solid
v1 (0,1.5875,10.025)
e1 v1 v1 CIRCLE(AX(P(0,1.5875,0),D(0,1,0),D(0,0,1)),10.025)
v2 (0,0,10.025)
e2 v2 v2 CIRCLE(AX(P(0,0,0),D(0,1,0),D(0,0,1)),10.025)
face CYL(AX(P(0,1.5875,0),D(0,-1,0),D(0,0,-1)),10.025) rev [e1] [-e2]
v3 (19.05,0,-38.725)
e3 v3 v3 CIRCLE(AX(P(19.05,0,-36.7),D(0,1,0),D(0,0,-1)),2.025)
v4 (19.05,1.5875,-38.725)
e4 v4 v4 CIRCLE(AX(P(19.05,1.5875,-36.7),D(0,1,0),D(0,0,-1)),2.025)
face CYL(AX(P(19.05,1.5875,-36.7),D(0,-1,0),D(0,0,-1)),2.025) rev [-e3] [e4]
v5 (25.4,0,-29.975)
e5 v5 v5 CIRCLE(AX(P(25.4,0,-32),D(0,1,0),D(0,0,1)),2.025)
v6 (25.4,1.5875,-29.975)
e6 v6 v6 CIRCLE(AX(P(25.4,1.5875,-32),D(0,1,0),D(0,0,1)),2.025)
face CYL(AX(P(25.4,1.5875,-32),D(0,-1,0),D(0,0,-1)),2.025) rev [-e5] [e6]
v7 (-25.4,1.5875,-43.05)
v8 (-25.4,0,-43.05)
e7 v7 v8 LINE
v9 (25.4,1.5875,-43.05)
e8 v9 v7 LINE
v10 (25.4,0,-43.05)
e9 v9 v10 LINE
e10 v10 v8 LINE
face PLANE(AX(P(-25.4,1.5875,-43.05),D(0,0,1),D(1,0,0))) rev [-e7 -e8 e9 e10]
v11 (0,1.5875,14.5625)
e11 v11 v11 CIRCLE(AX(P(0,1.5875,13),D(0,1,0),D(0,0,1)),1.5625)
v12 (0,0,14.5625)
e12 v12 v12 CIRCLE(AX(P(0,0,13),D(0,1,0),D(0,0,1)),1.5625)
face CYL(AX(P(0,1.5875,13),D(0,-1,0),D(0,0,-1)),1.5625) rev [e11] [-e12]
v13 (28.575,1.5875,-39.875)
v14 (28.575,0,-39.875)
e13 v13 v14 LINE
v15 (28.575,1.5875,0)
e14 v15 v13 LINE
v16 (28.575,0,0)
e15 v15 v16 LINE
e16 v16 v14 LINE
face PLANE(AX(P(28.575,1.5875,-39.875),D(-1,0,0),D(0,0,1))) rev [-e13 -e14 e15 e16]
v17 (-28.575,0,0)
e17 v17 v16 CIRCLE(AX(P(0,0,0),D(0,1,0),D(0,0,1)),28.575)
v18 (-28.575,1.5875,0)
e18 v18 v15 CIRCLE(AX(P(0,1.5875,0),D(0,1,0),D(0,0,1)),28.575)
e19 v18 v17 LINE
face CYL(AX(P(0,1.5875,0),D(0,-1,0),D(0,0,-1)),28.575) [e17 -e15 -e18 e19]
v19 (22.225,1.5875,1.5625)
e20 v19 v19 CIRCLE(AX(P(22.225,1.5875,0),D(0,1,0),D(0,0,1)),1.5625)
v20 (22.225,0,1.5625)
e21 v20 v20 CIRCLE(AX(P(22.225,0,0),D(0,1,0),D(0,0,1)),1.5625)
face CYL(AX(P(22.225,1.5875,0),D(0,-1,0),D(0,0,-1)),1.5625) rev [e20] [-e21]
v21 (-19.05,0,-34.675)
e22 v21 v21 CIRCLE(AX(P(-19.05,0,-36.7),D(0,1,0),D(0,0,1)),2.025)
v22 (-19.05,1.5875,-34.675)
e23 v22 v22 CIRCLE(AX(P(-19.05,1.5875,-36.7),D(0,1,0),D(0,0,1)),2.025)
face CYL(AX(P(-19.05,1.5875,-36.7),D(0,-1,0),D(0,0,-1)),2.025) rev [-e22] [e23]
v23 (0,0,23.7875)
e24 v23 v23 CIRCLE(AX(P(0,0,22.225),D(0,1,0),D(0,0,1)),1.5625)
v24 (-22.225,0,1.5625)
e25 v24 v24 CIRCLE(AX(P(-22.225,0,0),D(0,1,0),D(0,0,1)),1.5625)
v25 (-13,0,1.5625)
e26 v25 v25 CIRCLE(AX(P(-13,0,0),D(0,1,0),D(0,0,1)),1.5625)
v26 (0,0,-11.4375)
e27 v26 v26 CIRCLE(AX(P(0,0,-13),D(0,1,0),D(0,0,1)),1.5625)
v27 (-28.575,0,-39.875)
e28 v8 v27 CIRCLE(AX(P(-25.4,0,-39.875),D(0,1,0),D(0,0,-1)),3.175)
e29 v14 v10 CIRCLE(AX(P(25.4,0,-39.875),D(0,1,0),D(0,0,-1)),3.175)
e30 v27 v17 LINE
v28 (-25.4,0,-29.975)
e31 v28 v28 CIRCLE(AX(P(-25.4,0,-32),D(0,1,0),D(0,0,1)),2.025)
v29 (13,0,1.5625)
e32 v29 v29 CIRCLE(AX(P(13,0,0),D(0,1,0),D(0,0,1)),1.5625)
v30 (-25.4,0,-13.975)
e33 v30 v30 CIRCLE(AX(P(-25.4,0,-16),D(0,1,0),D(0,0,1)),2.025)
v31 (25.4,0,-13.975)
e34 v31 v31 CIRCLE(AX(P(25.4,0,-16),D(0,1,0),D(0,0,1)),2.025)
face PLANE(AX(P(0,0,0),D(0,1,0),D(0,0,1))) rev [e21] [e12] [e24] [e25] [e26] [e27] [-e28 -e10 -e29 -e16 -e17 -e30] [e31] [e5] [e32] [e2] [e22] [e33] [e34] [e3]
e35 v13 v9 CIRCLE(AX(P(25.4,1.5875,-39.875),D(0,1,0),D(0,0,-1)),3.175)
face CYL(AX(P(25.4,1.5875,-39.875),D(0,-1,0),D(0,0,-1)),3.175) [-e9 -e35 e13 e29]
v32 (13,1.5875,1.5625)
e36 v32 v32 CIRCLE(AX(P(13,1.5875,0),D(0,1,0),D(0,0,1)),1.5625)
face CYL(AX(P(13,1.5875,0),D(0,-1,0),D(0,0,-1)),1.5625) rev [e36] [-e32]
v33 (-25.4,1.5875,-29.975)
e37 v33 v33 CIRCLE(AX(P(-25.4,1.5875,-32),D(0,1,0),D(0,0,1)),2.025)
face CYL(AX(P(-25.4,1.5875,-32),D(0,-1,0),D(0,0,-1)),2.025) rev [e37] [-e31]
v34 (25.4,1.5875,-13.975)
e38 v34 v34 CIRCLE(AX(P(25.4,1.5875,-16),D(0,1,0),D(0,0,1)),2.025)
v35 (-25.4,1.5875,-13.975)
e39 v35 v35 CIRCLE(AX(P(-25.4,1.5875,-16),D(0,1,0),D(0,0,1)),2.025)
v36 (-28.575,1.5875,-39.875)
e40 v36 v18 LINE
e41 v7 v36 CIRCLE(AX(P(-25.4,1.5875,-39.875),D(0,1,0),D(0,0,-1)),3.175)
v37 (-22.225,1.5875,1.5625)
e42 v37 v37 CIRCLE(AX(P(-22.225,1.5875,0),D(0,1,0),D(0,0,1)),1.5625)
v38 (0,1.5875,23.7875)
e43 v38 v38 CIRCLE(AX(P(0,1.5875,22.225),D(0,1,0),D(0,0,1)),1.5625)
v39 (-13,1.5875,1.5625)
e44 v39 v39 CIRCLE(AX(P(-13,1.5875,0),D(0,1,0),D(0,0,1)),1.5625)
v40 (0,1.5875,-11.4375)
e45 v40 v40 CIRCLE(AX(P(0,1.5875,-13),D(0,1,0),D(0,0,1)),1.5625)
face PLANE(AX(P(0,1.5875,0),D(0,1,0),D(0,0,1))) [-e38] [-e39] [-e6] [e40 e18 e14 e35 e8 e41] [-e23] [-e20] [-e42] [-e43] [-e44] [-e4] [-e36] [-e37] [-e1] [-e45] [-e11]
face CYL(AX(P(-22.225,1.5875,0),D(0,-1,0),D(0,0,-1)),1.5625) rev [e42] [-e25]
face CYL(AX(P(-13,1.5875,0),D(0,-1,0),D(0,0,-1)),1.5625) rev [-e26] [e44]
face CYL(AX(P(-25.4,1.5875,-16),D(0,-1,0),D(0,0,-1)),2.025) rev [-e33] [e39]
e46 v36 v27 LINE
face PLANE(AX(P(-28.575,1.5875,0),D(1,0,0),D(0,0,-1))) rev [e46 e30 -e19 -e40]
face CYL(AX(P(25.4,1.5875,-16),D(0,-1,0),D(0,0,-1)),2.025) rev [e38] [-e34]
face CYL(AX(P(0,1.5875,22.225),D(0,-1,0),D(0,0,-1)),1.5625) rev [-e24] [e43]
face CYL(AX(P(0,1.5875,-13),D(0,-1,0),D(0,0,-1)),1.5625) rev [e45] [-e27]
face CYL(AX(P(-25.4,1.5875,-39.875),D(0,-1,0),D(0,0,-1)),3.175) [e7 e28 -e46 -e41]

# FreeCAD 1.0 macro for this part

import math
import FreeCAD as App
import Part
import Sketcher
from FreeCAD import Vector
Q = App.Units.Quantity

doc = App.newDocument("Part")
params = doc.addObject("Spreadsheet::Sheet", "Params")
for row, (alias, value) in enumerate([
    ("sketch1_width", "2 in"),
    ("sketch1_radius", "1.125 in"),
    ("pad1_length", "0.0625 in"),
], start=1):
    params.set(f"A{row}", alias)
    params.set(f"B{row}", "=" + value)
    params.setAlias(f"B{row}", alias)

body = doc.addObject("PartDesign::Body", "Body")

# Sketch on XZ plane
sketch1 = body.newObject("Sketcher::SketchObject", "Sketch")
sketch1.AttachmentSupport = (doc.getObject("XZ_Plane"), [""])
sketch1.MapMode = "FlatFace"
sketch1.addGeometry([
    Part.LineSegment(Vector(-28.6, -39.9, 0), Vector(-28.6, 0, 0)),  # 0
    Part.ArcOfCircle(Part.Circle(Vector(0, 0, 0), Vector(0, 0, 1), 28.6), math.radians(0), math.radians(180)),  # 1
    Part.LineSegment(Vector(28.6, 0, 0), Vector(28.6, -39.9, 0)),  # 2
    Part.ArcOfCircle(Part.Circle(Vector(25.4, -39.9, 0), Vector(0, 0, 1), 3.2), math.radians(-90), math.radians(0)),  # 3
    Part.LineSegment(Vector(25.4, -43, 0), Vector(-25.4, -43, 0)),  # 4
    Part.ArcOfCircle(Part.Circle(Vector(-25.4, -39.9, 0), Vector(0, 0, 1), 3.2), math.radians(-180), math.radians(-90)),  # 5
    Part.Circle(Vector(22.2, 0, 0), Vector(0, 0, 1), 1.6),  # 6
    Part.Circle(Vector(13, 0, 0), Vector(0, 0, 1), 1.6),  # 7
    Part.Circle(Vector(0, 22.2, 0), Vector(0, 0, 1), 1.6),  # 8
    Part.Circle(Vector(0, 13, 0), Vector(0, 0, 1), 1.6),  # 9
    Part.Circle(Vector(0, 0, 0), Vector(0, 0, 1), 10),  # 10
    Part.Circle(Vector(-13, 0, 0), Vector(0, 0, 1), 1.6),  # 11
    Part.Circle(Vector(-22.2, 0, 0), Vector(0, 0, 1), 1.6),  # 12
    Part.Circle(Vector(25.4, -16, 0), Vector(0, 0, 1), 2),  # 13
    Part.Circle(Vector(25.4, -32, 0), Vector(0, 0, 1), 2),  # 14
    Part.Circle(Vector(19.1, -36.7, 0), Vector(0, 0, 1), 2),  # 15
    Part.Circle(Vector(0, -13, 0), Vector(0, 0, 1), 1.6),  # 16
    Part.Circle(Vector(-25.4, -16, 0), Vector(0, 0, 1), 2),  # 17
    Part.Circle(Vector(-19.1, -36.7, 0), Vector(0, 0, 1), 2),  # 18
    Part.Circle(Vector(-25.4, -32, 0), Vector(0, 0, 1), 2),  # 19
], False)
sketch1.addConstraint([
    Sketcher.Constraint("Tangent", 0, 2, 1, 2),
    Sketcher.Constraint("Tangent", 1, 1, 2, 1),
    Sketcher.Constraint("Tangent", 2, 2, 3, 2),
    Sketcher.Constraint("Tangent", 3, 1, 4, 1),
    Sketcher.Constraint("Tangent", 4, 2, 5, 2),
    Sketcher.Constraint("Tangent", 5, 1, 0, 1),
    Sketcher.Constraint("Vertical", 0),
    Sketcher.Constraint("Vertical", 2),
    Sketcher.Constraint("Horizontal", 4),
    Sketcher.Constraint("Coincident", 1, 3, -1, 1),
    Sketcher.Constraint("Coincident", 10, 3, -1, 1),
    Sketcher.Constraint("Equal", 3, 5),
    Sketcher.Constraint("Equal", 6, 7),
    Sketcher.Constraint("Equal", 7, 8),
    Sketcher.Constraint("Equal", 8, 9),
    Sketcher.Constraint("Equal", 9, 11),
    Sketcher.Constraint("Equal", 11, 12),
    Sketcher.Constraint("Equal", 13, 14),
    Sketcher.Constraint("Equal", 14, 15),
    Sketcher.Constraint("Equal", 12, 16),
    Sketcher.Constraint("Equal", 15, 17),
    Sketcher.Constraint("Equal", 17, 18),
    Sketcher.Constraint("Equal", 18, 19),
    Sketcher.Constraint("Symmetric", 7, 3, 11, 3, -1, 1),
    Sketcher.Constraint("Symmetric", 6, 3, 12, 3, -1, 1),
    Sketcher.Constraint("Symmetric", 9, 3, 16, 3, -1, 1),
    Sketcher.Constraint("Symmetric", 13, 3, 17, 3, -2),
    Sketcher.Constraint("Symmetric", 15, 3, 18, 3, -2),
    Sketcher.Constraint("Symmetric", 14, 3, 19, 3, -2),
    Sketcher.Constraint("PointOnObject", 6, 3, -1),
    Sketcher.Constraint("PointOnObject", 7, 3, -1),
    Sketcher.Constraint("PointOnObject", 8, 3, -2),
    Sketcher.Constraint("PointOnObject", 9, 3, -2),
    Sketcher.Constraint("Vertical", 3, 3, 13, 3),
    Sketcher.Constraint("Vertical", 13, 3, 14, 3),
    Sketcher.Constraint("DistanceX", 4, 2, 4, 1, Q("2 in")),
    Sketcher.Constraint("Radius", 1, Q("1.125 in")),
    Sketcher.Constraint("Diameter", 6, 3.125),
    Sketcher.Constraint("Diameter", 10, 20.05),
    Sketcher.Constraint("Diameter", 13, 4.05),
    Sketcher.Constraint("DistanceX", -1, 1, 15, 3, Q("0.75 in")),
    Sketcher.Constraint("DistanceX", 0, 2, 12, 3, Q("0.25 in")),
    Sketcher.Constraint("DistanceY", 3, 1, 15, 3, Q("0.25 in")),
    Sketcher.Constraint("DistanceY", -1, 1, 8, 3, Q("0.875 in")),
    Sketcher.Constraint("DistanceY", 0, 1, 0, 2, 39.875),
    Sketcher.Constraint("DistanceX", -1, 1, 7, 3, 13.0),
    Sketcher.Constraint("DistanceY", -1, 1, 9, 3, 13.0),
    Sketcher.Constraint("DistanceY", 13, 3, -1, 1, 16.0),
    Sketcher.Constraint("DistanceY", 14, 3, -1, 1, 32.0),
])
sketch1.setExpression("Constraints[35]", "Params.sketch1_width")
sketch1.setExpression("Constraints[36]", "Params.sketch1_radius")
pad1 = body.newObject("PartDesign::Pad", "Pad")
pad1.Profile = sketch1
pad1.setExpression("Length", "Params.pad1_length")
pad1.Reversed = True

doc.recompute()
